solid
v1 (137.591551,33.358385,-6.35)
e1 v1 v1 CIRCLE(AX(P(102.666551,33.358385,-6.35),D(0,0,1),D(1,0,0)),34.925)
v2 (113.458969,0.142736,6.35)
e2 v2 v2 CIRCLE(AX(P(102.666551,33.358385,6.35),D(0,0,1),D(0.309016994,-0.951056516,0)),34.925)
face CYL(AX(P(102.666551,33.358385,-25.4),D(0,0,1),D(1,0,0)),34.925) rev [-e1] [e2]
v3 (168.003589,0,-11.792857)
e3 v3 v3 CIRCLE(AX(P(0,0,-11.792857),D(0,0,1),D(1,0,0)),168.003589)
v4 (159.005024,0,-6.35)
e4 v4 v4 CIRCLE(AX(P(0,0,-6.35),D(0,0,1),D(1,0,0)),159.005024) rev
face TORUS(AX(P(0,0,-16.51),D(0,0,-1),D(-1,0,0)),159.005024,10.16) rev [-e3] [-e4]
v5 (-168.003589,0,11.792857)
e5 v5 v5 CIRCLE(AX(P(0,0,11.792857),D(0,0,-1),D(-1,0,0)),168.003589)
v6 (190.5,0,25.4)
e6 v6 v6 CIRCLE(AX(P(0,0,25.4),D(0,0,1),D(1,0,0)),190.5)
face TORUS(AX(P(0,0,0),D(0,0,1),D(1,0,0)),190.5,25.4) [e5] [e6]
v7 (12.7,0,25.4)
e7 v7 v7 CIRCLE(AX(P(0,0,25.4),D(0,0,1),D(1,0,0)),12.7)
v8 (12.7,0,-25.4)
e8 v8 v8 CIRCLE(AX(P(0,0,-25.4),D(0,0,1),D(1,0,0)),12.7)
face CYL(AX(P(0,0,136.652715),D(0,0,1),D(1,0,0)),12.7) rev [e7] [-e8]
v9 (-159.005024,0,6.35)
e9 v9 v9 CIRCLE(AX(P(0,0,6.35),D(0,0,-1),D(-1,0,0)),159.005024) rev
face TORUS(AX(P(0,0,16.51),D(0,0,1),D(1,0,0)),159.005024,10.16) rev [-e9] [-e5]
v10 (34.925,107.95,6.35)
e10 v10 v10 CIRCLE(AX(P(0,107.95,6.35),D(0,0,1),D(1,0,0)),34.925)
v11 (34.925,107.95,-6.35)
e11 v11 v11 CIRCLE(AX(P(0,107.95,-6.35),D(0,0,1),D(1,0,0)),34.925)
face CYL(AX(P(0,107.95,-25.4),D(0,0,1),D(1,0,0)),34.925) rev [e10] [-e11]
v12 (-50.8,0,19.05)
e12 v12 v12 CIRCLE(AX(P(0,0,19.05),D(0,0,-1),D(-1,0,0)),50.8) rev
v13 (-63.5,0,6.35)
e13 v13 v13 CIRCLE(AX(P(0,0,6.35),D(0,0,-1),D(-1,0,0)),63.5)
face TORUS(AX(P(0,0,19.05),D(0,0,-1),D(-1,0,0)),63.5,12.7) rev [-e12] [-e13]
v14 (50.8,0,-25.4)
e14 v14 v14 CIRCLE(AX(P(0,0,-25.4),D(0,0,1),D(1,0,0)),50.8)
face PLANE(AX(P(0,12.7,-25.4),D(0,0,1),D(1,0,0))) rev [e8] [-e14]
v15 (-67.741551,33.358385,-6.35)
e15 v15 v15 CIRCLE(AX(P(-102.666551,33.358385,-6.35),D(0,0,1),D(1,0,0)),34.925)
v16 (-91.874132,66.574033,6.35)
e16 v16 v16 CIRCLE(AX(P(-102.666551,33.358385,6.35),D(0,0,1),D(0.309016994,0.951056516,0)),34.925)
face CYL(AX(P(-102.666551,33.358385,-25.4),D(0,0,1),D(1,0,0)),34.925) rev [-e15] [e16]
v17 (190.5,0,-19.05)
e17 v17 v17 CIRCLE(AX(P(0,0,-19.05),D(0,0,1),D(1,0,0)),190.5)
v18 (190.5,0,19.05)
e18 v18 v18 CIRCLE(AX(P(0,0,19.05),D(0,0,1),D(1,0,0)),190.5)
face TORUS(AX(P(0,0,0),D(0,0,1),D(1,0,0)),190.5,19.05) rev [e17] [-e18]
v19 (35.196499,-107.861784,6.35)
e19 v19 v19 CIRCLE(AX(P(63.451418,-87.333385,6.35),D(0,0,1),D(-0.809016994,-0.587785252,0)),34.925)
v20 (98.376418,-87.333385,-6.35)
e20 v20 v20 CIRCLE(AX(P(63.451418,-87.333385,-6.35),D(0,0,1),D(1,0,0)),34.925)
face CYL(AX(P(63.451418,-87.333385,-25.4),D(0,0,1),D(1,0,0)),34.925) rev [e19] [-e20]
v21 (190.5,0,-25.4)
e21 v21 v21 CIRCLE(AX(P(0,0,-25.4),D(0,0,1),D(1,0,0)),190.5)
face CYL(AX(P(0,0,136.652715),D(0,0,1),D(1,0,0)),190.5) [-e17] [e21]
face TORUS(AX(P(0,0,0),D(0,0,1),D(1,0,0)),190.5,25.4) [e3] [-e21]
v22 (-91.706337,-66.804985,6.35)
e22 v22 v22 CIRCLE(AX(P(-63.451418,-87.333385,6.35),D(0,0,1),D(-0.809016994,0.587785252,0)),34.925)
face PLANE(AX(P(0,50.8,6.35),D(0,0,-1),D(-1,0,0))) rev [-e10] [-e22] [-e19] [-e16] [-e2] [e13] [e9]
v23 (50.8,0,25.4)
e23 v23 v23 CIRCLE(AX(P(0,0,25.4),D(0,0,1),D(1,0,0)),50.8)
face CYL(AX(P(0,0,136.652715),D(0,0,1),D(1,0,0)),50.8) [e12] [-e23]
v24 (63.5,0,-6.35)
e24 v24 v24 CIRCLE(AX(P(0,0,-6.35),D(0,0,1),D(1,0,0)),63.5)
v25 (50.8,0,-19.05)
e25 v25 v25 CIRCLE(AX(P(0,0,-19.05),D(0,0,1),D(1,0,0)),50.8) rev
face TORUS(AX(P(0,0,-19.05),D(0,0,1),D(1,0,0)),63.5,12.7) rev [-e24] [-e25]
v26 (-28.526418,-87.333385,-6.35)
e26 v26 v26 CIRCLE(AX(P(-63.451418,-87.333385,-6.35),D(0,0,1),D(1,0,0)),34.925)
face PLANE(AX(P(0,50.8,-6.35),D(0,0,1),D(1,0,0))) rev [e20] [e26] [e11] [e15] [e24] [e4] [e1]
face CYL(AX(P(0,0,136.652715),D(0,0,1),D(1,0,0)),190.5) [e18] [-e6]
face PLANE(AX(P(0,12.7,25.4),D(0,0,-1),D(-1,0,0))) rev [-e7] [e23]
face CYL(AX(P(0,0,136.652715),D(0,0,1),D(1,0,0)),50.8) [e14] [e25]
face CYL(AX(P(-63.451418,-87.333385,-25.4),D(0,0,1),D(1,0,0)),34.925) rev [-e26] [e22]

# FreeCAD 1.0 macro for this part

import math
import FreeCAD as App
import Part
import Sketcher
from FreeCAD import Vector
Q = App.Units.Quantity


def edges_at(feature, points):
    """Names of the edges that pass closest to the given points."""
    edges = feature.Shape.Edges
    near = lambda p: min(range(len(edges)), key=lambda i: edges[i].distToShape(Part.Vertex(*p))[0])
    return sorted({f"Edge{near(p) + 1}" for p in points})

doc = App.newDocument("Part")
body = doc.addObject("PartDesign::Body", "Body")

# Sketch on YZ plane
sketch1 = body.newObject("Sketcher::SketchObject", "Sketch")
sketch1.AttachmentSupport = (doc.getObject("YZ_Plane"), [""])
sketch1.MapMode = "FlatFace"
sketch1.addGeometry([
    Part.LineSegment(Vector(190, 19, 0), Vector(190, 25, 0)),  # 0
    Part.ArcOfCircle(Part.Circle(Vector(190, 0, 0), Vector(0, 0, 1), 25), math.radians(90), math.radians(166)),  # 1
    Part.LineSegment(Vector(166, 6, 0), Vector(51, 6, 0)),  # 2
    Part.LineSegment(Vector(51, 6, 0), Vector(51, 25, 0)),  # 3
    Part.LineSegment(Vector(51, 25, 0), Vector(13, 25, 0)),  # 4
    Part.LineSegment(Vector(13, 25, 0), Vector(13, -25, 0)),  # 5
    Part.LineSegment(Vector(13, -25, 0), Vector(51, -25, 0)),  # 6
    Part.LineSegment(Vector(51, -25, 0), Vector(51, -6, 0)),  # 7
    Part.LineSegment(Vector(51, -6, 0), Vector(166, -6, 0)),  # 8
    Part.ArcOfCircle(Part.Circle(Vector(190, 0, 0), Vector(0, 0, 1), 25), math.radians(-166), math.radians(-90)),  # 9
    Part.LineSegment(Vector(190, -25, 0), Vector(190, -19, 0)),  # 10
    Part.ArcOfCircle(Part.Circle(Vector(190, 0, 0), Vector(0, 0, 1), 19), math.radians(90), math.radians(270)),  # 11
], False)
sketch1.addConstraint([
    Sketcher.Constraint("Coincident", 0, 2, 1, 1),
    Sketcher.Constraint("Coincident", 1, 2, 2, 1),
    Sketcher.Constraint("Coincident", 2, 2, 3, 1),
    Sketcher.Constraint("Coincident", 3, 2, 4, 1),
    Sketcher.Constraint("Coincident", 4, 2, 5, 1),
    Sketcher.Constraint("Coincident", 5, 2, 6, 1),
    Sketcher.Constraint("Coincident", 6, 2, 7, 1),
    Sketcher.Constraint("Coincident", 7, 2, 8, 1),
    Sketcher.Constraint("Coincident", 8, 2, 9, 1),
    Sketcher.Constraint("Coincident", 9, 2, 10, 1),
    Sketcher.Constraint("Coincident", 10, 2, 11, 2),
    Sketcher.Constraint("Coincident", 11, 1, 0, 1),
    Sketcher.Constraint("Vertical", 0),
    Sketcher.Constraint("Horizontal", 2),
    Sketcher.Constraint("Vertical", 3),
    Sketcher.Constraint("Horizontal", 4),
    Sketcher.Constraint("Vertical", 5),
    Sketcher.Constraint("Horizontal", 6),
    Sketcher.Constraint("Vertical", 7),
    Sketcher.Constraint("Horizontal", 8),
    Sketcher.Constraint("Vertical", 10),
    Sketcher.Constraint("Coincident", 9, 3, 1, 3),
    Sketcher.Constraint("Coincident", 11, 3, 1, 3),
    Sketcher.Constraint("Equal", 1, 9),
    Sketcher.Constraint("Symmetric", 3, 2, 6, 2, -1),
    Sketcher.Constraint("Symmetric", 1, 2, 8, 2, -1),
    Sketcher.Constraint("Horizontal", 0, 2, 3, 2),
    Sketcher.Constraint("Vertical", 11, 3, 0, 2),
    Sketcher.Constraint("Vertical", 0, 2, 9, 2),
    Sketcher.Constraint("Radius", 1, Q("1 in")),
    Sketcher.Constraint("Radius", 11, Q("0.75 in")),
    Sketcher.Constraint("DistanceX", 4, 2, 4, 1, Q("1.5 in")),
    Sketcher.Constraint("DistanceX", -1, 1, 2, 2, Q("2 in")),
    Sketcher.Constraint("DistanceX", 4, 2, 0, 2, Q("7 in")),
    Sketcher.Constraint("DistanceY", 3, 1, 3, 2, Q("0.75 in")),
])
revolution = body.newObject("PartDesign::Revolution", "Revolution")
revolution.Profile = sketch1
revolution.ReferenceAxis = (sketch1, ["V_Axis"])
revolution.Angle = 360

# Sketch on XY plane
sketch2 = body.newObject("Sketcher::SketchObject", "Sketch001")
sketch2.AttachmentSupport = (doc.getObject("XY_Plane"), [""])
sketch2.MapMode = "FlatFace"
sketch2.AttachmentOffset = App.Placement(Vector(0, 0, 0.25 * 25.4), App.Rotation())
sketch2.addGeometry(Part.Circle(Vector(0, 108, 0), Vector(0, 0, 1), 35), False)
sketch2.addConstraint([
    Sketcher.Constraint("PointOnObject", 0, 3, -2),
    Sketcher.Constraint("Diameter", 0, Q("2.75 in")),
    Sketcher.Constraint("DistanceY", -1, 1, 0, 3, Q("4.25 in")),
])
pocket1 = body.newObject("PartDesign::Pocket", "Pocket")
pocket1.Profile = sketch2
pocket1.Type = "ThroughAll"
doc.recompute()

polarpattern = body.newObject("PartDesign::PolarPattern", "PolarPattern")
polarpattern.Originals = [pocket1]
polarpattern.Axis = (doc.getObject("Z_Axis"), [""])
polarpattern.Angle = 360
polarpattern.Occurrences = 5
body.Tip = polarpattern
doc.recompute()

fillet = body.newObject("PartDesign::Fillet", "Fillet")
fillet.Base = (polarpattern, edges_at(polarpattern, [(-165.907, 0, -6.35), (-165.907, 0, 6.35)]))
fillet.Radius = Q("0.4 in")
doc.recompute()

fillet2 = body.newObject("PartDesign::Fillet", "Fillet001")
fillet2.Base = (fillet, edges_at(fillet, [(-50.8, 0, -6.35), (-50.8, 0, 6.35)]))
fillet2.Radius = Q("0.5 in")

doc.recompute()
